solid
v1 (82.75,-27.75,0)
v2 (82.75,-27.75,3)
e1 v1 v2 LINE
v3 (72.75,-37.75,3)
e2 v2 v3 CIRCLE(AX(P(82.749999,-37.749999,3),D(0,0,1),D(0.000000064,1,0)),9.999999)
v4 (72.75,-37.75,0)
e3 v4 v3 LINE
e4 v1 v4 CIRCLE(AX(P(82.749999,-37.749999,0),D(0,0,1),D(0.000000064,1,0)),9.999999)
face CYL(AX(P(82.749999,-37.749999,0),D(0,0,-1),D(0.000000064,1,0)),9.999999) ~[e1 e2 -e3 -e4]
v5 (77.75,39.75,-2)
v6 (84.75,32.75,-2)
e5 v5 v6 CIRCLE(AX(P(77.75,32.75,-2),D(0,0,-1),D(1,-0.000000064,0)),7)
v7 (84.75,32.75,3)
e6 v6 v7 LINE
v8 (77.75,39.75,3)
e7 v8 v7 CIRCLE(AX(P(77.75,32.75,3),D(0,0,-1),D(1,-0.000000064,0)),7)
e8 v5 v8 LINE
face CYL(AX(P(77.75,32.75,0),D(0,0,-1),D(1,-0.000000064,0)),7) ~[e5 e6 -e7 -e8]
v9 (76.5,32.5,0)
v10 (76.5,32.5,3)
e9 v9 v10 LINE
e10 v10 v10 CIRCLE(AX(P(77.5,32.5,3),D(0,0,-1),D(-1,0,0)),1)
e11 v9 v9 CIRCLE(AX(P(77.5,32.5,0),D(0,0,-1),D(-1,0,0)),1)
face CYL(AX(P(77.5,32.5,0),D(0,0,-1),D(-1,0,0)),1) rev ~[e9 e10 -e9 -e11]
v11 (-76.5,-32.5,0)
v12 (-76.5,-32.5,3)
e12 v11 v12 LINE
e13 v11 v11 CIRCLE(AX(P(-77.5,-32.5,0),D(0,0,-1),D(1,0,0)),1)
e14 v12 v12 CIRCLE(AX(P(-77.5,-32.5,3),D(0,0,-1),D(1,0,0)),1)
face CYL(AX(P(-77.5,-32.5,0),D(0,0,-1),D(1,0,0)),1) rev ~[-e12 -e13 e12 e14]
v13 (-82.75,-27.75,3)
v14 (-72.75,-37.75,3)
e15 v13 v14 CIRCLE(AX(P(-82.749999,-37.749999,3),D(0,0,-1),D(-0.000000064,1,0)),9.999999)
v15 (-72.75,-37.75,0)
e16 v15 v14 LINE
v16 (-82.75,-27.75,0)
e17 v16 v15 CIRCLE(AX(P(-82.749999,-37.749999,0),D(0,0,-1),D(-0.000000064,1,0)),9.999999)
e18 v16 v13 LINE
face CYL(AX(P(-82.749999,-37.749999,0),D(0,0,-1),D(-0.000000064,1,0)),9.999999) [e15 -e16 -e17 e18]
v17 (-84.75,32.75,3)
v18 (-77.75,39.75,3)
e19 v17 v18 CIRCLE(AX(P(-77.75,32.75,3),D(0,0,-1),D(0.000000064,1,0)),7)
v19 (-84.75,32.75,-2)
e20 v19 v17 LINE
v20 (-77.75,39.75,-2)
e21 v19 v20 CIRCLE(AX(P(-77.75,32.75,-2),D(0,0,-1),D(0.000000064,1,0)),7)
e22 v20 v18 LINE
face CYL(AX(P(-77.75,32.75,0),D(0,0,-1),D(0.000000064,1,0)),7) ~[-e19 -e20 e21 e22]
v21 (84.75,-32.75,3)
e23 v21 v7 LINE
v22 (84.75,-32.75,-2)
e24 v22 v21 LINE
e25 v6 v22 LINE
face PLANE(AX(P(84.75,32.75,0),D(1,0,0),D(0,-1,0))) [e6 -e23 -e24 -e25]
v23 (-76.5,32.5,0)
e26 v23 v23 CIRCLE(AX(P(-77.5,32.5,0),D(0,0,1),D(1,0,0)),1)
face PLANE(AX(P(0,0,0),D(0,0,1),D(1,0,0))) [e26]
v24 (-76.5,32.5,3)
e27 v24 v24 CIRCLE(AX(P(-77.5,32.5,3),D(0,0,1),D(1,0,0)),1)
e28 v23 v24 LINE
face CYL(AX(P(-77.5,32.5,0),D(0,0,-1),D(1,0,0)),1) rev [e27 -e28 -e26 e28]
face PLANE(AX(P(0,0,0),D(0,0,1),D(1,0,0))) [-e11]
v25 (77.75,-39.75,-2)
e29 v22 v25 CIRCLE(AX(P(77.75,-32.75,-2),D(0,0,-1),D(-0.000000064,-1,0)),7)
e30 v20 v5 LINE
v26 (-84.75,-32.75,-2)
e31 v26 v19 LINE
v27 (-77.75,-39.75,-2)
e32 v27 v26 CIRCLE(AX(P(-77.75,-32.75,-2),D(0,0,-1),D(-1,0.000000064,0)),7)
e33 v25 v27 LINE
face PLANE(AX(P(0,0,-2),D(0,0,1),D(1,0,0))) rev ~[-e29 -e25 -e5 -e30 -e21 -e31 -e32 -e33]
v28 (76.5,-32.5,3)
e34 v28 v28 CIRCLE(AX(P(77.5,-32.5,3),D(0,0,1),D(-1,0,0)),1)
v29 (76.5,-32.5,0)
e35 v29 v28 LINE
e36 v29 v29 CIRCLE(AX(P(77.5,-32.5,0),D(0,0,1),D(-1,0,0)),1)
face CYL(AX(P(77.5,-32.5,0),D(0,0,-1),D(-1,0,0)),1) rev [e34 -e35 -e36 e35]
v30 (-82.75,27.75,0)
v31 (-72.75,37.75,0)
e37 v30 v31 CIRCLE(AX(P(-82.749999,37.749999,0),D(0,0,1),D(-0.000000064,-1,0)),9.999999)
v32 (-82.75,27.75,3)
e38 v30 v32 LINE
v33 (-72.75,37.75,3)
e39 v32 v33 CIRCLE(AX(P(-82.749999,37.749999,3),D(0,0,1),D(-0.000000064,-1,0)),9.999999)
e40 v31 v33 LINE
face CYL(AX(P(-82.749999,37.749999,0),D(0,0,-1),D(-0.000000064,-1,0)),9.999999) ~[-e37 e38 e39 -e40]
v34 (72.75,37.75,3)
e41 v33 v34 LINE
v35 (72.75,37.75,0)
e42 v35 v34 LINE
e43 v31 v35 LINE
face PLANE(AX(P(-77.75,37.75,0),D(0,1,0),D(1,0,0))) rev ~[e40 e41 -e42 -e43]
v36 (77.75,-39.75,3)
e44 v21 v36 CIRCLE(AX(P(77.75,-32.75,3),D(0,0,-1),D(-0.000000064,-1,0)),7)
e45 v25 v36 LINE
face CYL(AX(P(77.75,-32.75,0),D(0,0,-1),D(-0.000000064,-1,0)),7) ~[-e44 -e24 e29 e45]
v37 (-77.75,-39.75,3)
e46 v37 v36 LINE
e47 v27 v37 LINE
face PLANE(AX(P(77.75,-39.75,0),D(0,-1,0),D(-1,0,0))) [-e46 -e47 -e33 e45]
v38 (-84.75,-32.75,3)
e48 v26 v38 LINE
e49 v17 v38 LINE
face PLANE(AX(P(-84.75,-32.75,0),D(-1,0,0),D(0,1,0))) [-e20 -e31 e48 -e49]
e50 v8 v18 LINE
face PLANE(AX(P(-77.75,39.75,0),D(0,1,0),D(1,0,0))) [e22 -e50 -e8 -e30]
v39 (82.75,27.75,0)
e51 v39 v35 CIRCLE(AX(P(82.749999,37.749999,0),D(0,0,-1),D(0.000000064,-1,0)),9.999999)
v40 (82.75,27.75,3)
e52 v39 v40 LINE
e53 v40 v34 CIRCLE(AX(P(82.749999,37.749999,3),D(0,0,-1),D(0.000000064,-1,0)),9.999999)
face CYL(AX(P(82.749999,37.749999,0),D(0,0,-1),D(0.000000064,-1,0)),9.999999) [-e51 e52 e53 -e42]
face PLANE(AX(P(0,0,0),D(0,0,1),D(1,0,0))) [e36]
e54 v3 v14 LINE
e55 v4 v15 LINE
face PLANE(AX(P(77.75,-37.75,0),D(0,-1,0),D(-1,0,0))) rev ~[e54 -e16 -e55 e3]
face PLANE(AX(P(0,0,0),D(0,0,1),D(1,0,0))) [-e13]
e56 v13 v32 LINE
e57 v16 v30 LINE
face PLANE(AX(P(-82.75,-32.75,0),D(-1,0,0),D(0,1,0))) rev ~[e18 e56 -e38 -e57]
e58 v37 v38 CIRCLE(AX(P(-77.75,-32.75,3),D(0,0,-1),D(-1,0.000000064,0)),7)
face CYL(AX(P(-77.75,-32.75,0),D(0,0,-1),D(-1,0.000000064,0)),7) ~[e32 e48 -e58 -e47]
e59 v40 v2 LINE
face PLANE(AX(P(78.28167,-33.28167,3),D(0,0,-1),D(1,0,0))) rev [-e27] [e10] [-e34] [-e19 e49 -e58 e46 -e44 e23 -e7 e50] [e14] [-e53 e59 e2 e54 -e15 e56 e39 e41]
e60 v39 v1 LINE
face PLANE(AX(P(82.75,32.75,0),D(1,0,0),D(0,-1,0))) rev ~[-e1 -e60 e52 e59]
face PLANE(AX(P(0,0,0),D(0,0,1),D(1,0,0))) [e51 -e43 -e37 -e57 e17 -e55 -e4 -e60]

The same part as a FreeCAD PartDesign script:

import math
import FreeCAD as App
import Part
import Sketcher
from FreeCAD import Vector
Q = App.Units.Quantity


def faces_at(feature, points):
    """Names of the faces that lie closest to the given points."""
    faces = feature.Shape.Faces
    near = lambda p: min(range(len(faces)), key=lambda i: faces[i].distToShape(Part.Vertex(*p))[0])
    return sorted({f"Face{near(p) + 1}" for p in points})

doc = App.newDocument("Part")
body = doc.addObject("PartDesign::Body", "Body")

sketch1 = body.newObject("Sketcher::SketchObject", "Sketch")
sketch1.AttachmentSupport = (doc.getObject("XY_Plane"), [""])
sketch1.MapMode = "FlatFace"
sketch1.addGeometry([
    Part.ArcOfCircle(Part.Circle(Vector(-77.8, 32.8, 0), Vector(0, 0, 1), 5), math.radians(90), math.radians(180)),
    Part.LineSegment(Vector(-82.8, 32.8, 0), Vector(-82.8, -32.8, 0)),
    Part.ArcOfCircle(Part.Circle(Vector(-77.8, -32.8, 0), Vector(0, 0, 1), 5), math.radians(180), math.radians(270)),
    Part.LineSegment(Vector(-77.8, -37.8, 0), Vector(77.8, -37.8, 0)),
    Part.ArcOfCircle(Part.Circle(Vector(77.8, -32.8, 0), Vector(0, 0, 1), 5), math.radians(-90), math.radians(0)),
    Part.LineSegment(Vector(82.8, -32.8, 0), Vector(82.8, 32.8, 0)),
    Part.ArcOfCircle(Part.Circle(Vector(77.8, 32.8, 0), Vector(0, 0, 1), 5), math.radians(0), math.radians(90)),
    Part.LineSegment(Vector(77.8, 37.8, 0), Vector(-77.8, 37.8, 0)),
], False)
sketch1.addConstraint([
    Sketcher.Constraint("Tangent", 0, 2, 1, 1),
    Sketcher.Constraint("Tangent", 1, 2, 2, 1),
    Sketcher.Constraint("Tangent", 2, 2, 3, 1),
    Sketcher.Constraint("Tangent", 3, 2, 4, 1),
    Sketcher.Constraint("Tangent", 4, 2, 5, 1),
    Sketcher.Constraint("Tangent", 5, 2, 6, 1),
    Sketcher.Constraint("Tangent", 6, 2, 7, 1),
    Sketcher.Constraint("Tangent", 7, 2, 0, 1),
    Sketcher.Constraint("Vertical", 1),
    Sketcher.Constraint("Horizontal", 3),
    Sketcher.Constraint("Vertical", 5),
    Sketcher.Constraint("Horizontal", 7),
    Sketcher.Constraint("Equal", 0, 2),
    Sketcher.Constraint("Equal", 2, 4),
    Sketcher.Constraint("Equal", 4, 6),
    Sketcher.Constraint("Symmetric", 0, 3, 4, 3, -1, 1),
    Sketcher.Constraint("Radius", 0, Q("5 mm")),
    Sketcher.Constraint("DistanceX", 3, 1, 3, 2, Q("155.5 mm")),
    Sketcher.Constraint("DistanceY", 1, 2, 1, 1, Q("65.5 mm")),
])
pad1 = body.newObject("PartDesign::Pad", "Pad")
pad1.Profile = sketch1
pad1.Length = 3
doc.recompute()

thickness = body.newObject("PartDesign::Thickness", "Thickness")
thickness.Base = (pad1, faces_at(pad1, [(0, 0, 3)]))
thickness.Value = 2
thickness.Reversed = False
thickness.Join = "Intersection"

sketch2 = body.newObject("Sketcher::SketchObject", "Sketch001")
sketch2.AttachmentSupport = (doc.getObject("XY_Plane"), [""])
sketch2.MapMode = "FlatFace"
sketch2.addGeometry([
    Part.LineSegment(Vector(-82.8, 32.8, 0), Vector(-82.8, 27.8, 0)),
    Part.ArcOfCircle(Part.Circle(Vector(-82.7, 37.7, 0), Vector(0, 0, 1), 10), math.radians(-90), math.radians(0)),
    Part.LineSegment(Vector(-72.8, 37.8, 0), Vector(-77.8, 37.8, 0)),
    Part.ArcOfCircle(Part.Circle(Vector(-77.8, 32.8, 0), Vector(0, 0, 1), 5), math.radians(90), math.radians(180)),
    Part.Circle(Vector(-77.5, 32.5, 0), Vector(0, 0, 1), 1),
], False)
sketch2.addConstraint([
    Sketcher.Constraint("Coincident", 0, 2, 1, 1),
    Sketcher.Constraint("Coincident", 1, 2, 2, 1),
    Sketcher.Constraint("Tangent", 2, 2, 3, 1),
    Sketcher.Constraint("Tangent", 3, 2, 0, 1),
    Sketcher.Constraint("Vertical", 0),
    Sketcher.Constraint("Horizontal", 2),
    Sketcher.Constraint("Vertical", 1, 3, 0, 2),
    Sketcher.Constraint("Equal", 2, 0),
    Sketcher.Constraint("Diameter", 4, Q("2 mm")),
    Sketcher.Constraint("Radius", 1, Q("9.999999 mm")),
    Sketcher.Constraint("Radius", 3, Q("5 mm")),
    Sketcher.Constraint("DistanceX", 4, 3, -1, 1, Q("77.5 mm")),
    Sketcher.Constraint("DistanceY", -1, 1, 4, 3, Q("32.5 mm")),
    Sketcher.Constraint("DistanceX", 1, 3, -1, 1, Q("82.749999 mm")),
    Sketcher.Constraint("DistanceY", -1, 1, 1, 3, Q("37.749999 mm")),
])
pad2 = body.newObject("PartDesign::Pad", "Pad001")
pad2.Profile = sketch2
pad2.Length = 3

sketch3 = body.newObject("Sketcher::SketchObject", "Sketch002")
sketch3.AttachmentSupport = (doc.getObject("XY_Plane"), [""])
sketch3.MapMode = "FlatFace"
sketch3.addGeometry([
    Part.LineSegment(Vector(82.8, 32.8, 0), Vector(82.8, 27.8, 0)),
    Part.ArcOfCircle(Part.Circle(Vector(82.7, 37.7, 0), Vector(0, 0, 1), 10), math.radians(180), math.radians(270)),
    Part.LineSegment(Vector(72.8, 37.8, 0), Vector(77.8, 37.8, 0)),
    Part.ArcOfCircle(Part.Circle(Vector(77.8, 32.8, 0), Vector(0, 0, 1), 5), math.radians(0), math.radians(90)),
    Part.Circle(Vector(77.5, 32.5, 0), Vector(0, 0, 1), 1),
], False)
sketch3.addConstraint([
    Sketcher.Constraint("Coincident", 0, 2, 1, 2),
    Sketcher.Constraint("Coincident", 1, 1, 2, 1),
    Sketcher.Constraint("Tangent", 2, 2, 3, 2),
    Sketcher.Constraint("Tangent", 3, 1, 0, 1),
    Sketcher.Constraint("Vertical", 0),
    Sketcher.Constraint("Horizontal", 2),
    Sketcher.Constraint("Vertical", 1, 3, 0, 2),
    Sketcher.Constraint("Equal", 2, 0),
    Sketcher.Constraint("Diameter", 4, Q("2 mm")),
    Sketcher.Constraint("Radius", 1, Q("9.999999 mm")),
    Sketcher.Constraint("Radius", 3, Q("5 mm")),
    Sketcher.Constraint("DistanceX", -1, 1, 4, 3, Q("77.5 mm")),
    Sketcher.Constraint("DistanceY", -1, 1, 4, 3, Q("32.5 mm")),
    Sketcher.Constraint("DistanceX", -1, 1, 1, 3, Q("82.749999 mm")),
    Sketcher.Constraint("DistanceY", -1, 1, 1, 3, Q("37.749999 mm")),
])
pad3 = body.newObject("PartDesign::Pad", "Pad002")
pad3.Profile = sketch3
pad3.Length = 3
doc.recompute()

mirrored = body.newObject("PartDesign::Mirrored", "Mirrored")
mirrored.Originals = [pad2, pad3]
mirrored.MirrorPlane = (doc.getObject("XZ_Plane"), [""])
body.Tip = mirrored

doc.recompute()
